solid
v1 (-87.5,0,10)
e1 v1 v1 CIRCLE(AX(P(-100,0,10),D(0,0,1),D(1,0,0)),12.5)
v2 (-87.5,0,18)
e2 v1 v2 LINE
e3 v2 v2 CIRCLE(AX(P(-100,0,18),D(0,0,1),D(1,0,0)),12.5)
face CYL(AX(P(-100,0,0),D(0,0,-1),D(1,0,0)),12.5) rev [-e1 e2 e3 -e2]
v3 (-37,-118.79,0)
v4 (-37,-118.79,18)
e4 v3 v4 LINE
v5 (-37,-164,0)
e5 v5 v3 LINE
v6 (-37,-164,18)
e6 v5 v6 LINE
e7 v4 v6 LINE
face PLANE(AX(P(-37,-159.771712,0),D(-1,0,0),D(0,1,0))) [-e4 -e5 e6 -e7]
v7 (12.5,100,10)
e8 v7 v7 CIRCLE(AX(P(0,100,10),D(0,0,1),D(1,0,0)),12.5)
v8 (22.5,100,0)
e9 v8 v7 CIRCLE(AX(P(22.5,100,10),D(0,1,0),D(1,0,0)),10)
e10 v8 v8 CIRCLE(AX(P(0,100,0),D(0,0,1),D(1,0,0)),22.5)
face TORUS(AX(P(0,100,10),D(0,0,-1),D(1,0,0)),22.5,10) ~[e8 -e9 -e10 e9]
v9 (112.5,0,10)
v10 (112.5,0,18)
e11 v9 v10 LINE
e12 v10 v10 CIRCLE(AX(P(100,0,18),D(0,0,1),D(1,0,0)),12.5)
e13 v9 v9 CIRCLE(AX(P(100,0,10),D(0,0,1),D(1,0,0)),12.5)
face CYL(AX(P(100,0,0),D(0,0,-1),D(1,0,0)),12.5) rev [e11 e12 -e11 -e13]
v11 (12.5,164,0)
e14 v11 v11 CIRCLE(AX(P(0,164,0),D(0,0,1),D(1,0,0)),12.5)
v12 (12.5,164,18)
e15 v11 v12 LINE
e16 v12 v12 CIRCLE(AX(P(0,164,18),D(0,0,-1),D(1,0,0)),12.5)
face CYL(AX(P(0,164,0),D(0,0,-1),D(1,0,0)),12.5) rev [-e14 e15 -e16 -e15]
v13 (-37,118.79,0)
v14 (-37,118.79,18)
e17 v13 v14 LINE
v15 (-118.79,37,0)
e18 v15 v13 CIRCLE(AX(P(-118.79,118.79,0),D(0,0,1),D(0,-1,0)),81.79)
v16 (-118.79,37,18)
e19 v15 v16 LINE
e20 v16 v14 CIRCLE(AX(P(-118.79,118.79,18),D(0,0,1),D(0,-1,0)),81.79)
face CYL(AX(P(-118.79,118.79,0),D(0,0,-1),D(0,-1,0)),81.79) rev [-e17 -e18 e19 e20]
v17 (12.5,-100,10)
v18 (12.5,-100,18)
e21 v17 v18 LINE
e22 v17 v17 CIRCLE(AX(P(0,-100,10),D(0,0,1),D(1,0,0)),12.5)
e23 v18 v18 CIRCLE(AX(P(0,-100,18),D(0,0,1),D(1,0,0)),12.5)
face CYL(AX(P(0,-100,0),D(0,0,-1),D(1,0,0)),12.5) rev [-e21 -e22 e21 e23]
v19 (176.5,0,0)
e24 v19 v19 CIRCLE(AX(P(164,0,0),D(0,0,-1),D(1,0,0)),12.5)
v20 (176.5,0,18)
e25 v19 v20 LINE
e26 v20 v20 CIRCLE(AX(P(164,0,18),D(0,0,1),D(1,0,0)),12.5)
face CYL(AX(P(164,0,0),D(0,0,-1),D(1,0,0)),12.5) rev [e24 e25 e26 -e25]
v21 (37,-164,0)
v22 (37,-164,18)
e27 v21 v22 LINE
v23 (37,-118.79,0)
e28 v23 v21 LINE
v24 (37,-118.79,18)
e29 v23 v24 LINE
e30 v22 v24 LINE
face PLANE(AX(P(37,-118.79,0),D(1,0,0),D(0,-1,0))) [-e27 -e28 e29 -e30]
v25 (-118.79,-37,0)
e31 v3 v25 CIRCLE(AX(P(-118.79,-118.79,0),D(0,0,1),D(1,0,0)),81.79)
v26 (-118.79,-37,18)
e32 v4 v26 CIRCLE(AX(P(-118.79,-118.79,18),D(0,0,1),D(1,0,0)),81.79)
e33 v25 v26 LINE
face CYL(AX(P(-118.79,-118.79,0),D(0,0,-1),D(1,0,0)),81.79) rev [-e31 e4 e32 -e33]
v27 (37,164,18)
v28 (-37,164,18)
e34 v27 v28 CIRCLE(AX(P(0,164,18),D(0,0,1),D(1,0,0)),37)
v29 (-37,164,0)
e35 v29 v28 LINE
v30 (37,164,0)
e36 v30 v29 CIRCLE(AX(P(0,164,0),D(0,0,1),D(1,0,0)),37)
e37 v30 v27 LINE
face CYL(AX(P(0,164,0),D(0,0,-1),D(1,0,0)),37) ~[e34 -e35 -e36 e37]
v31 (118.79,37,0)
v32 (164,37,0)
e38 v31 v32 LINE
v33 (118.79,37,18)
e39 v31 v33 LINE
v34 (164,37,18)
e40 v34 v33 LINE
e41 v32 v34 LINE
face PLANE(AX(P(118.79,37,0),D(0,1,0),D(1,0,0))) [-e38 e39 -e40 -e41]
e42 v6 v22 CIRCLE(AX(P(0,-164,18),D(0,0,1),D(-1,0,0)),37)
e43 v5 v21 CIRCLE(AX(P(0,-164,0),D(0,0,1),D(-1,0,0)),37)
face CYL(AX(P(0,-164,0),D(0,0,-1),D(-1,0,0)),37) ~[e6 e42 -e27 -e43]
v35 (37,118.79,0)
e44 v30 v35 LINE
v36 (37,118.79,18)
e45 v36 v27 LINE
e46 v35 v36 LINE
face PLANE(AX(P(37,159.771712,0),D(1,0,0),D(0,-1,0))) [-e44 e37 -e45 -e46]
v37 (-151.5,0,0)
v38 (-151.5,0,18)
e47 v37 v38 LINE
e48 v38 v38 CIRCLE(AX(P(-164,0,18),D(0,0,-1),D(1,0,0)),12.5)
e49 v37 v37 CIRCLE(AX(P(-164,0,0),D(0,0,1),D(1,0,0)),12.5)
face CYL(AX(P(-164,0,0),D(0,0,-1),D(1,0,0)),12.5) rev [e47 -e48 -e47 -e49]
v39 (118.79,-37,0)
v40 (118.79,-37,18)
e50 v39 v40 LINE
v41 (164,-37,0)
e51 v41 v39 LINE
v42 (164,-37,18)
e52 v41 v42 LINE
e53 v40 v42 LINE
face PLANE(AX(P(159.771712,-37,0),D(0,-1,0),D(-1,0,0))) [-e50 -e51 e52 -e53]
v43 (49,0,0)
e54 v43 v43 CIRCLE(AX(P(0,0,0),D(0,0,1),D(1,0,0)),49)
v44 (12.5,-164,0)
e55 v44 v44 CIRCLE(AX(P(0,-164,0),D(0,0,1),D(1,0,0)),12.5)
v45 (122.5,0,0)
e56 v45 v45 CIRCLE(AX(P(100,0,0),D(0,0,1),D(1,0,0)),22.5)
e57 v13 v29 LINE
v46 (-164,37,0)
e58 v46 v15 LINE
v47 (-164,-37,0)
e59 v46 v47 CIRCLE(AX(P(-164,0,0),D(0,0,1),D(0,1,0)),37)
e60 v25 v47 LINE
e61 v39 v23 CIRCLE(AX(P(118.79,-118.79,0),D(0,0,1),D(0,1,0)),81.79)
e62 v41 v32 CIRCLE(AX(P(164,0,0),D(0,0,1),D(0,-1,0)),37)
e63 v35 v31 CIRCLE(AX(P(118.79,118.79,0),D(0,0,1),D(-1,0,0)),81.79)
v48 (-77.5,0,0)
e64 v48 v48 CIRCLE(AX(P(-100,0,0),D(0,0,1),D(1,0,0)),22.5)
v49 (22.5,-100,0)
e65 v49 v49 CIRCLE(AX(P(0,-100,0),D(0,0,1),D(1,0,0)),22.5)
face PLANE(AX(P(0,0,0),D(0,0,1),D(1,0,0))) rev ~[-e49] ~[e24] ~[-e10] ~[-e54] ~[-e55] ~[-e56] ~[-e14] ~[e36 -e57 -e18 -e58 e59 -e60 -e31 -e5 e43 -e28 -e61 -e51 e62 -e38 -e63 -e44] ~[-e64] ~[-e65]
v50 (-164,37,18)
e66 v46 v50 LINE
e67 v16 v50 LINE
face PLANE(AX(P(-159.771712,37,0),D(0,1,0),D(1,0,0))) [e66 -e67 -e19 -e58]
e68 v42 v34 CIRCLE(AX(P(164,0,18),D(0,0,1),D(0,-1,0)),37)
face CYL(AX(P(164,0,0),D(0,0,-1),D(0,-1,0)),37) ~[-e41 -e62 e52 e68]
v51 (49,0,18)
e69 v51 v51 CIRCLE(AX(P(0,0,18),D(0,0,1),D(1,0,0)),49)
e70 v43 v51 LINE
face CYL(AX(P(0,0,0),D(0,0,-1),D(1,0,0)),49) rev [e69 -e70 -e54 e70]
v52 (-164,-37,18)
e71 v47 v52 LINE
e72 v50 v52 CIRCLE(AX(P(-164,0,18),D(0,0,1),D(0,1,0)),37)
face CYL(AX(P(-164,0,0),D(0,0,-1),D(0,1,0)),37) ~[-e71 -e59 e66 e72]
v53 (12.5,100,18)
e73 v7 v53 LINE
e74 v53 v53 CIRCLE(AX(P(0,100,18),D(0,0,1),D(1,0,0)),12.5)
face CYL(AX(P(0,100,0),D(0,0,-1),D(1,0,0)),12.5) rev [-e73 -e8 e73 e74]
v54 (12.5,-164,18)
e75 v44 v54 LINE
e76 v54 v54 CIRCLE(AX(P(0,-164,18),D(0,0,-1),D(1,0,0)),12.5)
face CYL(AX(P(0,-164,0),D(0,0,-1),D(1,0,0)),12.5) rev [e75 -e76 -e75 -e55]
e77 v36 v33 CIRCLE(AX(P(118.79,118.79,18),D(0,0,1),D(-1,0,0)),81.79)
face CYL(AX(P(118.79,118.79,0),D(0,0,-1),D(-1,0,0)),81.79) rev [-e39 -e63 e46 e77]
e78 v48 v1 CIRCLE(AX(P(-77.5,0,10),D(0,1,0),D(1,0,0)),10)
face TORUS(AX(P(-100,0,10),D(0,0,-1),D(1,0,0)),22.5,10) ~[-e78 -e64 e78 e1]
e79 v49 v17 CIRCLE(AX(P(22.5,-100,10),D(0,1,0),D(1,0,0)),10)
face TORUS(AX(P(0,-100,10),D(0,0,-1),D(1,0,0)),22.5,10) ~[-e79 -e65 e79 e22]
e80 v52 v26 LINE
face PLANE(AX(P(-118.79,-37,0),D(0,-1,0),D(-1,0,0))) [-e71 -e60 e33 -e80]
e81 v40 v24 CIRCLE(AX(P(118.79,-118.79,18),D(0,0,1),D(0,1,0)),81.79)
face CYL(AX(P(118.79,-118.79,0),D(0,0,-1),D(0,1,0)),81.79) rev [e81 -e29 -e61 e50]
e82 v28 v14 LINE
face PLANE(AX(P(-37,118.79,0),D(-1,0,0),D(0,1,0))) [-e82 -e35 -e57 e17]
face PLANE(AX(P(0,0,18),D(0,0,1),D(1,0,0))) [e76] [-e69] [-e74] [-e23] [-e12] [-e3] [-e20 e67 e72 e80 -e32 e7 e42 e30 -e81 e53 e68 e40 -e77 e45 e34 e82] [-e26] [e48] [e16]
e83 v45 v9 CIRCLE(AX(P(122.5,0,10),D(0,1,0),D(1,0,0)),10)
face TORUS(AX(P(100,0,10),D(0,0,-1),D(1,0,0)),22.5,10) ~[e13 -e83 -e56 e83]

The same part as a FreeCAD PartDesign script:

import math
import FreeCAD as App
import Part
import Sketcher


def edges_at(feature, points):
    """Names of the edges that pass closest to the given points."""
    edges = feature.Shape.Edges
    near = lambda p: min(range(len(edges)), key=lambda i: edges[i].distToShape(Part.Vertex(*p))[0])
    return sorted({f"Edge{near(p) + 1}" for p in points})

doc = App.newDocument("Part")
params = doc.addObject("Spreadsheet::Sheet", "Params")
for row, (alias, value) in enumerate([
    ("sketch1_diameter", "25 mm"),
    ("sketch1_diameter2", "98 mm"),
    ("sketch1_radius", "37 mm"),
    ("sketch1_width", "45.21 mm"),
    ("pad1_length", "18 mm"),
    ("fillet_radius", "10 mm"),
], start=1):
    params.set(f"A{row}", alias)
    params.set(f"B{row}", "=" + value)
    params.setAlias(f"B{row}", alias)

body = doc.addObject("PartDesign::Body", "Body")

sketch1 = body.newObject("Sketcher::SketchObject", "Sketch")
sketch1.AttachmentSupport = (doc.getObject("XY_Plane"), [""])
sketch1.MapMode = "FlatFace"
sketch1.addGeometry(Part.LineSegment(App.Vector(119, -37, 0), App.Vector(164, -37, 0)), False)
sketch1.addGeometry(Part.ArcOfCircle(Part.Circle(App.Vector(164, 0, 0), App.Vector(0, 0, 1), 37), math.radians(-90), math.radians(90)), False)
sketch1.addGeometry(Part.LineSegment(App.Vector(164, 37, 0), App.Vector(119, 37, 0)), False)
sketch1.addGeometry(Part.ArcOfCircle(Part.Circle(App.Vector(119, 119, 0), App.Vector(0, 0, 1), 82), math.radians(180), math.radians(270)), False)
sketch1.addGeometry(Part.LineSegment(App.Vector(37, 119, 0), App.Vector(37, 164, 0)), False)
sketch1.addGeometry(Part.ArcOfCircle(Part.Circle(App.Vector(0, 164, 0), App.Vector(0, 0, 1), 37), math.radians(0), math.radians(180)), False)
sketch1.addGeometry(Part.LineSegment(App.Vector(-37, 164, 0), App.Vector(-37, 119, 0)), False)
sketch1.addGeometry(Part.ArcOfCircle(Part.Circle(App.Vector(-119, 119, 0), App.Vector(0, 0, 1), 82), math.radians(-90), math.radians(0)), False)
sketch1.addGeometry(Part.LineSegment(App.Vector(-119, 37, 0), App.Vector(-164, 37, 0)), False)
sketch1.addGeometry(Part.ArcOfCircle(Part.Circle(App.Vector(-164, 0, 0), App.Vector(0, 0, 1), 37), math.radians(90), math.radians(270)), False)
sketch1.addGeometry(Part.LineSegment(App.Vector(-164, -37, 0), App.Vector(-119, -37, 0)), False)
sketch1.addGeometry(Part.ArcOfCircle(Part.Circle(App.Vector(-119, -119, 0), App.Vector(0, 0, 1), 82), math.radians(0), math.radians(90)), False)
sketch1.addGeometry(Part.LineSegment(App.Vector(-37, -119, 0), App.Vector(-37, -164, 0)), False)
sketch1.addGeometry(Part.ArcOfCircle(Part.Circle(App.Vector(0, -164, 0), App.Vector(0, 0, 1), 37), math.radians(180), math.radians(360)), False)
sketch1.addGeometry(Part.LineSegment(App.Vector(37, -164, 0), App.Vector(37, -119, 0)), False)
sketch1.addGeometry(Part.ArcOfCircle(Part.Circle(App.Vector(119, -119, 0), App.Vector(0, 0, 1), 82), math.radians(90), math.radians(180)), False)
sketch1.addGeometry(Part.Circle(App.Vector(164, 0, 0), App.Vector(0, 0, 1), 12), False)
sketch1.addGeometry(Part.Circle(App.Vector(0, -164, 0), App.Vector(0, 0, 1), 12), False)
sketch1.addGeometry(Part.Circle(App.Vector(-164, 0, 0), App.Vector(0, 0, 1), 12), False)
sketch1.addGeometry(Part.Circle(App.Vector(0, 164, 0), App.Vector(0, 0, 1), 12), False)
sketch1.addGeometry(Part.Circle(App.Vector(0, -100, 0), App.Vector(0, 0, 1), 12), False)
sketch1.addGeometry(Part.Circle(App.Vector(-100, 0, 0), App.Vector(0, 0, 1), 12), False)
sketch1.addGeometry(Part.Circle(App.Vector(0, 0, 0), App.Vector(0, 0, 1), 49), False)
sketch1.addGeometry(Part.Circle(App.Vector(100, 0, 0), App.Vector(0, 0, 1), 12), False)
sketch1.addGeometry(Part.Circle(App.Vector(0, 100, 0), App.Vector(0, 0, 1), 12), False)
sketch1.addConstraint(Sketcher.Constraint("Tangent", 0, 2, 1, 1))
sketch1.addConstraint(Sketcher.Constraint("Tangent", 1, 2, 2, 1))
sketch1.addConstraint(Sketcher.Constraint("Tangent", 2, 2, 3, 2))
sketch1.addConstraint(Sketcher.Constraint("Tangent", 3, 1, 4, 1))
sketch1.addConstraint(Sketcher.Constraint("Tangent", 4, 2, 5, 1))
sketch1.addConstraint(Sketcher.Constraint("Tangent", 5, 2, 6, 1))
sketch1.addConstraint(Sketcher.Constraint("Tangent", 6, 2, 7, 2))
sketch1.addConstraint(Sketcher.Constraint("Tangent", 7, 1, 8, 1))
sketch1.addConstraint(Sketcher.Constraint("Tangent", 8, 2, 9, 1))
sketch1.addConstraint(Sketcher.Constraint("Tangent", 9, 2, 10, 1))
sketch1.addConstraint(Sketcher.Constraint("Tangent", 10, 2, 11, 2))
sketch1.addConstraint(Sketcher.Constraint("Tangent", 11, 1, 12, 1))
sketch1.addConstraint(Sketcher.Constraint("Tangent", 12, 2, 13, 1))
sketch1.addConstraint(Sketcher.Constraint("Tangent", 13, 2, 14, 1))
sketch1.addConstraint(Sketcher.Constraint("Tangent", 14, 2, 15, 2))
sketch1.addConstraint(Sketcher.Constraint("Tangent", 15, 1, 0, 1))
sketch1.addConstraint(Sketcher.Constraint("Horizontal", 0))
sketch1.addConstraint(Sketcher.Constraint("Horizontal", 2))
sketch1.addConstraint(Sketcher.Constraint("Vertical", 4))
sketch1.addConstraint(Sketcher.Constraint("Vertical", 6))
sketch1.addConstraint(Sketcher.Constraint("Horizontal", 8))
sketch1.addConstraint(Sketcher.Constraint("Horizontal", 10))
sketch1.addConstraint(Sketcher.Constraint("Vertical", 12))
sketch1.addConstraint(Sketcher.Constraint("Vertical", 14))
sketch1.addConstraint(Sketcher.Constraint("Coincident", 22, 3, -1, 1))
sketch1.addConstraint(Sketcher.Constraint("Coincident", 16, 3, 1, 3))
sketch1.addConstraint(Sketcher.Constraint("Coincident", 17, 3, 13, 3))
sketch1.addConstraint(Sketcher.Constraint("Coincident", 18, 3, 9, 3))
sketch1.addConstraint(Sketcher.Constraint("Coincident", 19, 3, 5, 3))
sketch1.addConstraint(Sketcher.Constraint("Equal", 1, 5))
sketch1.addConstraint(Sketcher.Constraint("Equal", 3, 7))
sketch1.addConstraint(Sketcher.Constraint("Equal", 5, 9))
sketch1.addConstraint(Sketcher.Constraint("Equal", 7, 11))
sketch1.addConstraint(Sketcher.Constraint("Equal", 9, 13))
sketch1.addConstraint(Sketcher.Constraint("Equal", 11, 15))
sketch1.addConstraint(Sketcher.Constraint("Equal", 16, 17))
sketch1.addConstraint(Sketcher.Constraint("Equal", 17, 18))
sketch1.addConstraint(Sketcher.Constraint("Equal", 18, 19))
sketch1.addConstraint(Sketcher.Constraint("Equal", 19, 20))
sketch1.addConstraint(Sketcher.Constraint("Equal", 20, 21))
sketch1.addConstraint(Sketcher.Constraint("Equal", 21, 23))
sketch1.addConstraint(Sketcher.Constraint("Equal", 23, 24))
sketch1.addConstraint(Sketcher.Constraint("Symmetric", 1, 3, 9, 3, -1, 1))
sketch1.addConstraint(Sketcher.Constraint("Symmetric", 5, 3, 13, 3, -1, 1))
sketch1.addConstraint(Sketcher.Constraint("Symmetric", 21, 3, 23, 3, -1, 1))
sketch1.addConstraint(Sketcher.Constraint("Symmetric", 20, 3, 24, 3, -1, 1))
sketch1.addConstraint(Sketcher.Constraint("Symmetric", 3, 3, 7, 3, -2))
sketch1.addConstraint(Sketcher.Constraint("PointOnObject", 20, 3, -2))
sketch1.addConstraint(Sketcher.Constraint("PointOnObject", 21, 3, -1))
sketch1.addConstraint(Sketcher.Constraint("Equal", 10, 4))
sketch1.addConstraint(Sketcher.Constraint("Diameter", 16, 25.0))
sketch1.addConstraint(Sketcher.Constraint("Diameter", 22, 98.0))
sketch1.addConstraint(Sketcher.Constraint("Radius", 1, 37.0))
sketch1.addConstraint(Sketcher.Constraint("DistanceY", 20, 3, -1, 1, 100.0))
sketch1.addConstraint(Sketcher.Constraint("DistanceX", 21, 3, -1, 1, 100.0))
sketch1.addConstraint(Sketcher.Constraint("DistanceX", 9, 3, 1, 3, 328.0))
sketch1.addConstraint(Sketcher.Constraint("DistanceX", 0, 1, 0, 2, 45.21))
sketch1.setExpression("Constraints[50]", "Params.sketch1_diameter")
sketch1.setExpression("Constraints[51]", "Params.sketch1_diameter2")
sketch1.setExpression("Constraints[52]", "Params.sketch1_radius")
sketch1.setExpression("Constraints[56]", "Params.sketch1_width")
pad1 = body.newObject("PartDesign::Pad", "Pad")
pad1.Profile = sketch1
pad1.setExpression("Length", "Params.pad1_length")
doc.recompute()

fillet = body.newObject("PartDesign::Fillet", "Fillet")
fillet.Base = (pad1, edges_at(pad1, [
    (-111.654, 4.52, 0),
    (-11.654, -95.48, 0),
    (88.346, 4.52, 0),
    (-11.654, 104.52, 0),
]))
fillet.setExpression("Radius", "Params.fillet_radius")

doc.recompute()
